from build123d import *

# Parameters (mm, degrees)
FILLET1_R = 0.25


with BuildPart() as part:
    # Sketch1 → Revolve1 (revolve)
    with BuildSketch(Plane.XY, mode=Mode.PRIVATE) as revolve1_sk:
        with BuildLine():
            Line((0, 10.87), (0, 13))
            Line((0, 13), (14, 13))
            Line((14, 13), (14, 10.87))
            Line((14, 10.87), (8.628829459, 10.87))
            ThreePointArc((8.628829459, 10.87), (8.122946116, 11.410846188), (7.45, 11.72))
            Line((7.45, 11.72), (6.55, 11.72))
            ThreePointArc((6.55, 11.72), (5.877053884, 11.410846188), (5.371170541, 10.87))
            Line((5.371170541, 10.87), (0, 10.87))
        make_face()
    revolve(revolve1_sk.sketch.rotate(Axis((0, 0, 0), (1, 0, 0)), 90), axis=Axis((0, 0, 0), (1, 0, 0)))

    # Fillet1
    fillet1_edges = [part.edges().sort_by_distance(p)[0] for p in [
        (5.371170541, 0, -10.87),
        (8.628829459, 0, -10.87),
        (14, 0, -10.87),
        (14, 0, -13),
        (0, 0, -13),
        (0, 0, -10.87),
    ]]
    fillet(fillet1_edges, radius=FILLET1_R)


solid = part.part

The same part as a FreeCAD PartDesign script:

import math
import FreeCAD as App
import Part
import Sketcher


def edges_at(feature, points):
    """Names of the edges that pass closest to the given points."""
    edges = feature.Shape.Edges
    near = lambda p: min(range(len(edges)), key=lambda i: edges[i].distToShape(Part.Vertex(*p))[0])
    return sorted({f"Edge{near(p) + 1}" for p in points})

doc = App.newDocument("Part")
body = doc.addObject("PartDesign::Body", "Body")

sketch1 = doc.addObject("Sketcher::SketchObject", "Sketch")
body.addObject(sketch1)
sketch1.AttachmentSupport = (doc.XY_Plane, [""])
sketch1.MapMode = "FlatFace"
sketch1.addGeometry(Part.LineSegment(App.Vector(0, 13, 0), App.Vector(0, 10.9, 0)), False)
sketch1.addGeometry(Part.LineSegment(App.Vector(0, 10.9, 0), App.Vector(5.4, 10.9, 0)), False)
sketch1.addGeometry(Part.ArcOfCircle(Part.Circle(App.Vector(7, 9.9, 0), App.Vector(0, 0, 1), 1.9), math.radians(104), math.radians(148)), False)
sketch1.addGeometry(Part.LineSegment(App.Vector(6.5, 11.7, 0), App.Vector(7.5, 11.7, 0)), False)
sketch1.addGeometry(Part.ArcOfCircle(Part.Circle(App.Vector(7, 9.9, 0), App.Vector(0, 0, 1), 1.9), math.radians(32), math.radians(76)), False)
sketch1.addGeometry(Part.LineSegment(App.Vector(8.6, 10.9, 0), App.Vector(14, 10.9, 0)), False)
sketch1.addGeometry(Part.LineSegment(App.Vector(14, 10.9, 0), App.Vector(14, 13, 0)), False)
sketch1.addGeometry(Part.LineSegment(App.Vector(14, 13, 0), App.Vector(0, 13, 0)), False)
sketch1.addConstraint(Sketcher.Constraint("Coincident", 0, 2, 1, 1))
sketch1.addConstraint(Sketcher.Constraint("Coincident", 1, 2, 2, 2))
sketch1.addConstraint(Sketcher.Constraint("Coincident", 2, 1, 3, 1))
sketch1.addConstraint(Sketcher.Constraint("Coincident", 3, 2, 4, 2))
sketch1.addConstraint(Sketcher.Constraint("Coincident", 4, 1, 5, 1))
sketch1.addConstraint(Sketcher.Constraint("Coincident", 5, 2, 6, 1))
sketch1.addConstraint(Sketcher.Constraint("Coincident", 6, 2, 7, 1))
sketch1.addConstraint(Sketcher.Constraint("Coincident", 7, 2, 0, 1))
sketch1.addConstraint(Sketcher.Constraint("Vertical", 0))
sketch1.addConstraint(Sketcher.Constraint("Horizontal", 1))
sketch1.addConstraint(Sketcher.Constraint("Horizontal", 3))
sketch1.addConstraint(Sketcher.Constraint("Horizontal", 5))
sketch1.addConstraint(Sketcher.Constraint("Vertical", 6))
sketch1.addConstraint(Sketcher.Constraint("Horizontal", 7))
sketch1.addConstraint(Sketcher.Constraint("Coincident", 4, 3, 2, 3))
sketch1.addConstraint(Sketcher.Constraint("Equal", 2, 4))
sketch1.addConstraint(Sketcher.Constraint("PointOnObject", 0, 2, -2))
sketch1.addConstraint(Sketcher.Constraint("Horizontal", 1, 2, 4, 1))
sketch1.addConstraint(Sketcher.Constraint("Equal", 1, 5))
sketch1.addConstraint(Sketcher.Constraint("DistanceX", 7, 2, 7, 1, 14.0))
sketch1.addConstraint(Sketcher.Constraint("Radius", 2, 1.92))
sketch1.addConstraint(Sketcher.Constraint("DistanceX", 3, 1, 3, 2, 0.9))
sketch1.addConstraint(Sketcher.Constraint("DistanceY", -1, 1, 6, 2, 13.0))
sketch1.addConstraint(Sketcher.Constraint("DistanceY", 0, 2, 0, 1, 2.13))
sketch1.addConstraint(Sketcher.Constraint("DistanceY", -1, 1, 2, 1, 11.72))
revolution = doc.addObject("PartDesign::Revolution", "Revolution")
body.addObject(revolution)
revolution.Profile = sketch1
revolution.ReferenceAxis = (sketch1, ["H_Axis"])
revolution.Angle = 360
doc.recompute()

fillet = doc.addObject("PartDesign::Fillet", "Fillet")
body.addObject(fillet)
fillet.Base = (revolution, edges_at(revolution, [
    (5.371, 0, -10.87),
    (8.629, 0, -10.87),
    (14, 0, -10.87),
    (14, 0, -13),
    (0, 0, -13),
    (0, 0, -10.87),
]))
fillet.Radius = 0.25

doc.recompute()
